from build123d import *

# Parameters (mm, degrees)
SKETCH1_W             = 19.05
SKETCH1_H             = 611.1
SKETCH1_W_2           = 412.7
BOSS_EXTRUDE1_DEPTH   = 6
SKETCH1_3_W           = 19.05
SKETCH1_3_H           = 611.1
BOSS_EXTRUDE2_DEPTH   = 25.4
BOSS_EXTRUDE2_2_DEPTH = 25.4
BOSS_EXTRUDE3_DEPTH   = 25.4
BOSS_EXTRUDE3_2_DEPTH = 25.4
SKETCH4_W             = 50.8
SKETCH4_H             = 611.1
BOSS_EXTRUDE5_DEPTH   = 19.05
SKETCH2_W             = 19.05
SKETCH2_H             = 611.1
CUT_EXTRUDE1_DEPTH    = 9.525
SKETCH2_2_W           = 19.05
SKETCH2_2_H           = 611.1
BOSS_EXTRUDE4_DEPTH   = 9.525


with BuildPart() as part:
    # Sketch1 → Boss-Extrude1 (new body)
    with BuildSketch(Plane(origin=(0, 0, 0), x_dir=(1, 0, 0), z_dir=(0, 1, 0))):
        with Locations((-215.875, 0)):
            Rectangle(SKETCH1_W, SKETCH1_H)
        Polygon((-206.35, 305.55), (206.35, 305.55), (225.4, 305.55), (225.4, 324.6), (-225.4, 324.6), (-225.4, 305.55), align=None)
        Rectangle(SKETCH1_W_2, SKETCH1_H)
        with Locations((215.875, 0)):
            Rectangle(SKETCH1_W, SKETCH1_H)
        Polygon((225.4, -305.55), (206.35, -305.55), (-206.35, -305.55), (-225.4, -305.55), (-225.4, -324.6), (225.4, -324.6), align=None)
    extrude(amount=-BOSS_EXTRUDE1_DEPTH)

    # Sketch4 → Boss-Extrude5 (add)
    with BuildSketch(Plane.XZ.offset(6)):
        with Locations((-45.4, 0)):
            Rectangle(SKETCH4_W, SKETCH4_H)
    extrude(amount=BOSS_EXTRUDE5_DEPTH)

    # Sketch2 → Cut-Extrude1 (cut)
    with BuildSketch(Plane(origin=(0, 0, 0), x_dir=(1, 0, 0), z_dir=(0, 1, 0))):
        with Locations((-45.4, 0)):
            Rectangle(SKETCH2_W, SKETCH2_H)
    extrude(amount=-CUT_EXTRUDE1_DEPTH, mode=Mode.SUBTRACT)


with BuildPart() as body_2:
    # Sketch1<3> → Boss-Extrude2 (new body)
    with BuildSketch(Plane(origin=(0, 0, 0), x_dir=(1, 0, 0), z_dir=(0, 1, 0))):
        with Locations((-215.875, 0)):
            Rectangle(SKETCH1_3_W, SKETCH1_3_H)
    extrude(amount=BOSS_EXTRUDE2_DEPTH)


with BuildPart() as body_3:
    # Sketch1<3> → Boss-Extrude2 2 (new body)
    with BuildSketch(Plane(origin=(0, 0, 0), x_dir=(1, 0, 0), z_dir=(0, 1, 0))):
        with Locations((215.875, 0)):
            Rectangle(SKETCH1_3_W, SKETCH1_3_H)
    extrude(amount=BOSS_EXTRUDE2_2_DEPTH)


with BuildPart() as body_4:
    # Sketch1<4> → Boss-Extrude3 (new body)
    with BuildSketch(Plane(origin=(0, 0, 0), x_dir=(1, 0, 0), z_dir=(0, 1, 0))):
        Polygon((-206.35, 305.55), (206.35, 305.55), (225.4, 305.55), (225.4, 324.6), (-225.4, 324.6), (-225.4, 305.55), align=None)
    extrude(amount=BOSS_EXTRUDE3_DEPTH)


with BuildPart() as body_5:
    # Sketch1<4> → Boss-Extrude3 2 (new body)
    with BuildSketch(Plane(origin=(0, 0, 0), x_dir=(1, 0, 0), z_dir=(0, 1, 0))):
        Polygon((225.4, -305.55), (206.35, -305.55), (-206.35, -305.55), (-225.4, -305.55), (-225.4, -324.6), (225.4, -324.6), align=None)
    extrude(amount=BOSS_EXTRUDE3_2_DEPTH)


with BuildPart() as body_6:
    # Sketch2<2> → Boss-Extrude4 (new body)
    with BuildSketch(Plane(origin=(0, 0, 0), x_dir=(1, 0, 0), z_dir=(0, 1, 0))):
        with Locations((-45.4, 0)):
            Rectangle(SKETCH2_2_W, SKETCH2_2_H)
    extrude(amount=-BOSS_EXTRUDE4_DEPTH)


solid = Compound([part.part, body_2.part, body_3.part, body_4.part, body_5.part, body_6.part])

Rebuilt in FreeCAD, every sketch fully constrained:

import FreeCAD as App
import Part
import Sketcher

V = App.Vector
Q = App.Units.Quantity


def add_polygon(sketch, points):
    """Adds a closed chain of lines whose ends are joined by coincident constraints."""
    first, n = sketch.GeometryCount, len(points)
    for a, b in zip(points, points[1:] + points[:1]):
        sketch.addGeometry(Part.LineSegment(App.Vector(*a, 0), App.Vector(*b, 0)), False)
    for i in range(n):
        sketch.addConstraint(Sketcher.Constraint("Coincident", first + i, 2, first + (i + 1) % n, 1))

doc = App.newDocument("Part")
body = doc.addObject("PartDesign::Body", "Body")

sketch1 = doc.addObject("Sketcher::SketchObject", "Sketch")
body.addObject(sketch1)
sketch1.AttachmentSupport = (doc.XZ_Plane, [""])
sketch1.MapMode = "FlatFace"
add_polygon(sketch1, [(225.4, -324.6), (-225.4, -324.6), (-225.4, 324.6), (225.4, 324.6)])
sketch1.addConstraint([
    Sketcher.Constraint("Horizontal", 0),
    Sketcher.Constraint("Vertical", 1),
    Sketcher.Constraint("Horizontal", 2),
    Sketcher.Constraint("Vertical", 3),
    Sketcher.Constraint("Symmetric", 0, 2, 2, 2, -1, 1),
    Sketcher.Constraint("DistanceX", 0, 2, 0, 1, Q("450.8 mm")),
    Sketcher.Constraint("DistanceY", 1, 1, 1, 2, Q("649.2 mm")),
])
pad1 = doc.addObject("PartDesign::Pad", "Pad")
body.addObject(pad1)
pad1.Profile = sketch1
pad1.Length = 6

sketch2 = doc.addObject("Sketcher::SketchObject", "Sketch001")
body.addObject(sketch2)
sketch2.AttachmentSupport = (doc.XZ_Plane, [""])
sketch2.MapMode = "FlatFace"
sketch2.AttachmentOffset = App.Placement(V(0, 0, 6), App.Rotation())
add_polygon(sketch2, [(-70.8, 305.55), (-70.8, -305.55), (-20, -305.55), (-20, 305.55)])
sketch2.addConstraint([
    Sketcher.Constraint("Vertical", 0),
    Sketcher.Constraint("Horizontal", 1),
    Sketcher.Constraint("Vertical", 2),
    Sketcher.Constraint("Horizontal", 3),
    Sketcher.Constraint("DistanceX", 1, 1, 1, 2, Q("50.8 mm")),
    Sketcher.Constraint("DistanceY", 0, 2, 0, 1, Q("611.1 mm")),
    Sketcher.Constraint("DistanceX", 1, 2, -1, 1, Q("20 mm")),
    Sketcher.Constraint("DistanceY", 0, 2, -1, 1, Q("305.55 mm")),
])
pad2 = doc.addObject("PartDesign::Pad", "Pad001")
body.addObject(pad2)
pad2.Profile = sketch2
pad2.Length = 19.05

sketch3 = doc.addObject("Sketcher::SketchObject", "Sketch002")
body.addObject(sketch3)
sketch3.AttachmentSupport = (doc.XZ_Plane, [""])
sketch3.MapMode = "FlatFace"
add_polygon(sketch3, [(-54.925, -305.55), (-54.925, 305.55), (-35.875, 305.55), (-35.875, -305.55)])
sketch3.addConstraint([
    Sketcher.Constraint("Vertical", 0),
    Sketcher.Constraint("Horizontal", 1),
    Sketcher.Constraint("Vertical", 2),
    Sketcher.Constraint("Horizontal", 3),
    Sketcher.Constraint("DistanceY", 0, 1, 0, 2, Q("611.1 mm")),
    Sketcher.Constraint("DistanceX", 1, 1, 1, 2, Q("19.05 mm")),
    Sketcher.Constraint("DistanceY", -1, 1, 0, 2, Q("305.55 mm")),
    Sketcher.Constraint("DistanceX", 0, 2, -1, 1, Q("54.925 mm")),
])
pocket1 = doc.addObject("PartDesign::Pocket", "Pocket")
body.addObject(pocket1)
pocket1.Profile = sketch3
pocket1.Length = 9.525
pocket1.Reversed = True
body2 = doc.addObject("PartDesign::Body", "Body001")

sketch4 = doc.addObject("Sketcher::SketchObject", "Sketch003")
body2.addObject(sketch4)
sketch4.AttachmentSupport = (doc.getObject("XZ_Plane001"), [""])
sketch4.MapMode = "FlatFace"
add_polygon(sketch4, [(-225.4, -305.55), (-225.4, 305.55), (-206.35, 305.55), (-206.35, -305.55)])
sketch4.addConstraint([
    Sketcher.Constraint("Vertical", 0),
    Sketcher.Constraint("Horizontal", 1),
    Sketcher.Constraint("Vertical", 2),
    Sketcher.Constraint("Horizontal", 3),
    Sketcher.Constraint("DistanceY", 0, 1, 0, 2, Q("611.1 mm")),
    Sketcher.Constraint("DistanceX", 1, 1, 1, 2, Q("19.05 mm")),
    Sketcher.Constraint("DistanceX", 0, 2, -1, 1, Q("225.4 mm")),
    Sketcher.Constraint("DistanceY", -1, 1, 0, 2, Q("305.55 mm")),
])
pad3 = doc.addObject("PartDesign::Pad", "Pad002")
body2.addObject(pad3)
pad3.Profile = sketch4
pad3.Length = 25.4
pad3.Reversed = True
body3 = doc.addObject("PartDesign::Body", "Body002")

sketch5 = doc.addObject("Sketcher::SketchObject", "Sketch004")
body3.addObject(sketch5)
sketch5.AttachmentSupport = (doc.getObject("XZ_Plane002"), [""])
sketch5.MapMode = "FlatFace"
add_polygon(sketch5, [(206.35, -305.55), (206.35, 305.55), (225.4, 305.55), (225.4, -305.55)])
sketch5.addConstraint([
    Sketcher.Constraint("Vertical", 0),
    Sketcher.Constraint("Horizontal", 1),
    Sketcher.Constraint("Vertical", 2),
    Sketcher.Constraint("Horizontal", 3),
    Sketcher.Constraint("DistanceY", 0, 1, 0, 2, Q("611.1 mm")),
    Sketcher.Constraint("DistanceX", 1, 1, 1, 2, Q("19.05 mm")),
    Sketcher.Constraint("DistanceX", -1, 1, 1, 2, Q("225.4 mm")),
    Sketcher.Constraint("DistanceY", -1, 1, 0, 2, Q("305.55 mm")),
])
pad4 = doc.addObject("PartDesign::Pad", "Pad003")
body3.addObject(pad4)
pad4.Profile = sketch5
pad4.Length = 25.4
pad4.Reversed = True
body4 = doc.addObject("PartDesign::Body", "Body003")

sketch6 = doc.addObject("Sketcher::SketchObject", "Sketch005")
body4.addObject(sketch6)
sketch6.AttachmentSupport = (doc.getObject("XZ_Plane003"), [""])
sketch6.MapMode = "FlatFace"
add_polygon(sketch6, [(225.4, -305.55), (225.4, -324.6), (-225.4, -324.6), (-225.4, -305.55)])
sketch6.addConstraint([
    Sketcher.Constraint("Vertical", 0),
    Sketcher.Constraint("Horizontal", 1),
    Sketcher.Constraint("Vertical", 2),
    Sketcher.Constraint("Horizontal", 3),
    Sketcher.Constraint("DistanceX", 1, 2, 1, 1, Q("450.8 mm")),
    Sketcher.Constraint("DistanceY", 0, 2, 0, 1, Q("19.05 mm")),
    Sketcher.Constraint("DistanceX", -1, 1, 0, 2, Q("225.4 mm")),
    Sketcher.Constraint("DistanceY", 0, 2, -1, 1, Q("324.6 mm")),
])
pad5 = doc.addObject("PartDesign::Pad", "Pad004")
body4.addObject(pad5)
pad5.Profile = sketch6
pad5.Length = 25.4
pad5.Reversed = True
body5 = doc.addObject("PartDesign::Body", "Body004")

sketch7 = doc.addObject("Sketcher::SketchObject", "Sketch006")
body5.addObject(sketch7)
sketch7.AttachmentSupport = (doc.getObject("XZ_Plane004"), [""])
sketch7.MapMode = "FlatFace"
add_polygon(sketch7, [(225.4, 305.55), (-225.4, 305.55), (-225.4, 324.6), (225.4, 324.6)])
sketch7.addConstraint([
    Sketcher.Constraint("Horizontal", 0),
    Sketcher.Constraint("Vertical", 1),
    Sketcher.Constraint("Horizontal", 2),
    Sketcher.Constraint("Vertical", 3),
    Sketcher.Constraint("DistanceX", 0, 2, 0, 1, Q("450.8 mm")),
    Sketcher.Constraint("DistanceY", 1, 1, 1, 2, Q("19.05 mm")),
    Sketcher.Constraint("DistanceX", 0, 2, -1, 1, Q("225.4 mm")),
    Sketcher.Constraint("DistanceY", -1, 1, 1, 2, Q("324.6 mm")),
])
pad6 = doc.addObject("PartDesign::Pad", "Pad005")
body5.addObject(pad6)
pad6.Profile = sketch7
pad6.Length = 25.4
pad6.Reversed = True
body6 = doc.addObject("PartDesign::Body", "Body005")

sketch8 = doc.addObject("Sketcher::SketchObject", "Sketch007")
body6.addObject(sketch8)
sketch8.AttachmentSupport = (doc.getObject("XZ_Plane005"), [""])
sketch8.MapMode = "FlatFace"
add_polygon(sketch8, [(-54.925, -305.55), (-54.925, 305.55), (-35.875, 305.55), (-35.875, -305.55)])
sketch8.addConstraint([
    Sketcher.Constraint("Vertical", 0),
    Sketcher.Constraint("Horizontal", 1),
    Sketcher.Constraint("Vertical", 2),
    Sketcher.Constraint("Horizontal", 3),
    Sketcher.Constraint("DistanceY", 0, 1, 0, 2, Q("611.1 mm")),
    Sketcher.Constraint("DistanceX", 1, 1, 1, 2, Q("19.05 mm")),
    Sketcher.Constraint("DistanceY", -1, 1, 0, 2, Q("305.55 mm")),
    Sketcher.Constraint("DistanceX", 0, 2, -1, 1, Q("54.925 mm")),
])
pad7 = doc.addObject("PartDesign::Pad", "Pad006")
body6.addObject(pad7)
pad7.Profile = sketch8
pad7.Length = 9.525

doc.recompute()
